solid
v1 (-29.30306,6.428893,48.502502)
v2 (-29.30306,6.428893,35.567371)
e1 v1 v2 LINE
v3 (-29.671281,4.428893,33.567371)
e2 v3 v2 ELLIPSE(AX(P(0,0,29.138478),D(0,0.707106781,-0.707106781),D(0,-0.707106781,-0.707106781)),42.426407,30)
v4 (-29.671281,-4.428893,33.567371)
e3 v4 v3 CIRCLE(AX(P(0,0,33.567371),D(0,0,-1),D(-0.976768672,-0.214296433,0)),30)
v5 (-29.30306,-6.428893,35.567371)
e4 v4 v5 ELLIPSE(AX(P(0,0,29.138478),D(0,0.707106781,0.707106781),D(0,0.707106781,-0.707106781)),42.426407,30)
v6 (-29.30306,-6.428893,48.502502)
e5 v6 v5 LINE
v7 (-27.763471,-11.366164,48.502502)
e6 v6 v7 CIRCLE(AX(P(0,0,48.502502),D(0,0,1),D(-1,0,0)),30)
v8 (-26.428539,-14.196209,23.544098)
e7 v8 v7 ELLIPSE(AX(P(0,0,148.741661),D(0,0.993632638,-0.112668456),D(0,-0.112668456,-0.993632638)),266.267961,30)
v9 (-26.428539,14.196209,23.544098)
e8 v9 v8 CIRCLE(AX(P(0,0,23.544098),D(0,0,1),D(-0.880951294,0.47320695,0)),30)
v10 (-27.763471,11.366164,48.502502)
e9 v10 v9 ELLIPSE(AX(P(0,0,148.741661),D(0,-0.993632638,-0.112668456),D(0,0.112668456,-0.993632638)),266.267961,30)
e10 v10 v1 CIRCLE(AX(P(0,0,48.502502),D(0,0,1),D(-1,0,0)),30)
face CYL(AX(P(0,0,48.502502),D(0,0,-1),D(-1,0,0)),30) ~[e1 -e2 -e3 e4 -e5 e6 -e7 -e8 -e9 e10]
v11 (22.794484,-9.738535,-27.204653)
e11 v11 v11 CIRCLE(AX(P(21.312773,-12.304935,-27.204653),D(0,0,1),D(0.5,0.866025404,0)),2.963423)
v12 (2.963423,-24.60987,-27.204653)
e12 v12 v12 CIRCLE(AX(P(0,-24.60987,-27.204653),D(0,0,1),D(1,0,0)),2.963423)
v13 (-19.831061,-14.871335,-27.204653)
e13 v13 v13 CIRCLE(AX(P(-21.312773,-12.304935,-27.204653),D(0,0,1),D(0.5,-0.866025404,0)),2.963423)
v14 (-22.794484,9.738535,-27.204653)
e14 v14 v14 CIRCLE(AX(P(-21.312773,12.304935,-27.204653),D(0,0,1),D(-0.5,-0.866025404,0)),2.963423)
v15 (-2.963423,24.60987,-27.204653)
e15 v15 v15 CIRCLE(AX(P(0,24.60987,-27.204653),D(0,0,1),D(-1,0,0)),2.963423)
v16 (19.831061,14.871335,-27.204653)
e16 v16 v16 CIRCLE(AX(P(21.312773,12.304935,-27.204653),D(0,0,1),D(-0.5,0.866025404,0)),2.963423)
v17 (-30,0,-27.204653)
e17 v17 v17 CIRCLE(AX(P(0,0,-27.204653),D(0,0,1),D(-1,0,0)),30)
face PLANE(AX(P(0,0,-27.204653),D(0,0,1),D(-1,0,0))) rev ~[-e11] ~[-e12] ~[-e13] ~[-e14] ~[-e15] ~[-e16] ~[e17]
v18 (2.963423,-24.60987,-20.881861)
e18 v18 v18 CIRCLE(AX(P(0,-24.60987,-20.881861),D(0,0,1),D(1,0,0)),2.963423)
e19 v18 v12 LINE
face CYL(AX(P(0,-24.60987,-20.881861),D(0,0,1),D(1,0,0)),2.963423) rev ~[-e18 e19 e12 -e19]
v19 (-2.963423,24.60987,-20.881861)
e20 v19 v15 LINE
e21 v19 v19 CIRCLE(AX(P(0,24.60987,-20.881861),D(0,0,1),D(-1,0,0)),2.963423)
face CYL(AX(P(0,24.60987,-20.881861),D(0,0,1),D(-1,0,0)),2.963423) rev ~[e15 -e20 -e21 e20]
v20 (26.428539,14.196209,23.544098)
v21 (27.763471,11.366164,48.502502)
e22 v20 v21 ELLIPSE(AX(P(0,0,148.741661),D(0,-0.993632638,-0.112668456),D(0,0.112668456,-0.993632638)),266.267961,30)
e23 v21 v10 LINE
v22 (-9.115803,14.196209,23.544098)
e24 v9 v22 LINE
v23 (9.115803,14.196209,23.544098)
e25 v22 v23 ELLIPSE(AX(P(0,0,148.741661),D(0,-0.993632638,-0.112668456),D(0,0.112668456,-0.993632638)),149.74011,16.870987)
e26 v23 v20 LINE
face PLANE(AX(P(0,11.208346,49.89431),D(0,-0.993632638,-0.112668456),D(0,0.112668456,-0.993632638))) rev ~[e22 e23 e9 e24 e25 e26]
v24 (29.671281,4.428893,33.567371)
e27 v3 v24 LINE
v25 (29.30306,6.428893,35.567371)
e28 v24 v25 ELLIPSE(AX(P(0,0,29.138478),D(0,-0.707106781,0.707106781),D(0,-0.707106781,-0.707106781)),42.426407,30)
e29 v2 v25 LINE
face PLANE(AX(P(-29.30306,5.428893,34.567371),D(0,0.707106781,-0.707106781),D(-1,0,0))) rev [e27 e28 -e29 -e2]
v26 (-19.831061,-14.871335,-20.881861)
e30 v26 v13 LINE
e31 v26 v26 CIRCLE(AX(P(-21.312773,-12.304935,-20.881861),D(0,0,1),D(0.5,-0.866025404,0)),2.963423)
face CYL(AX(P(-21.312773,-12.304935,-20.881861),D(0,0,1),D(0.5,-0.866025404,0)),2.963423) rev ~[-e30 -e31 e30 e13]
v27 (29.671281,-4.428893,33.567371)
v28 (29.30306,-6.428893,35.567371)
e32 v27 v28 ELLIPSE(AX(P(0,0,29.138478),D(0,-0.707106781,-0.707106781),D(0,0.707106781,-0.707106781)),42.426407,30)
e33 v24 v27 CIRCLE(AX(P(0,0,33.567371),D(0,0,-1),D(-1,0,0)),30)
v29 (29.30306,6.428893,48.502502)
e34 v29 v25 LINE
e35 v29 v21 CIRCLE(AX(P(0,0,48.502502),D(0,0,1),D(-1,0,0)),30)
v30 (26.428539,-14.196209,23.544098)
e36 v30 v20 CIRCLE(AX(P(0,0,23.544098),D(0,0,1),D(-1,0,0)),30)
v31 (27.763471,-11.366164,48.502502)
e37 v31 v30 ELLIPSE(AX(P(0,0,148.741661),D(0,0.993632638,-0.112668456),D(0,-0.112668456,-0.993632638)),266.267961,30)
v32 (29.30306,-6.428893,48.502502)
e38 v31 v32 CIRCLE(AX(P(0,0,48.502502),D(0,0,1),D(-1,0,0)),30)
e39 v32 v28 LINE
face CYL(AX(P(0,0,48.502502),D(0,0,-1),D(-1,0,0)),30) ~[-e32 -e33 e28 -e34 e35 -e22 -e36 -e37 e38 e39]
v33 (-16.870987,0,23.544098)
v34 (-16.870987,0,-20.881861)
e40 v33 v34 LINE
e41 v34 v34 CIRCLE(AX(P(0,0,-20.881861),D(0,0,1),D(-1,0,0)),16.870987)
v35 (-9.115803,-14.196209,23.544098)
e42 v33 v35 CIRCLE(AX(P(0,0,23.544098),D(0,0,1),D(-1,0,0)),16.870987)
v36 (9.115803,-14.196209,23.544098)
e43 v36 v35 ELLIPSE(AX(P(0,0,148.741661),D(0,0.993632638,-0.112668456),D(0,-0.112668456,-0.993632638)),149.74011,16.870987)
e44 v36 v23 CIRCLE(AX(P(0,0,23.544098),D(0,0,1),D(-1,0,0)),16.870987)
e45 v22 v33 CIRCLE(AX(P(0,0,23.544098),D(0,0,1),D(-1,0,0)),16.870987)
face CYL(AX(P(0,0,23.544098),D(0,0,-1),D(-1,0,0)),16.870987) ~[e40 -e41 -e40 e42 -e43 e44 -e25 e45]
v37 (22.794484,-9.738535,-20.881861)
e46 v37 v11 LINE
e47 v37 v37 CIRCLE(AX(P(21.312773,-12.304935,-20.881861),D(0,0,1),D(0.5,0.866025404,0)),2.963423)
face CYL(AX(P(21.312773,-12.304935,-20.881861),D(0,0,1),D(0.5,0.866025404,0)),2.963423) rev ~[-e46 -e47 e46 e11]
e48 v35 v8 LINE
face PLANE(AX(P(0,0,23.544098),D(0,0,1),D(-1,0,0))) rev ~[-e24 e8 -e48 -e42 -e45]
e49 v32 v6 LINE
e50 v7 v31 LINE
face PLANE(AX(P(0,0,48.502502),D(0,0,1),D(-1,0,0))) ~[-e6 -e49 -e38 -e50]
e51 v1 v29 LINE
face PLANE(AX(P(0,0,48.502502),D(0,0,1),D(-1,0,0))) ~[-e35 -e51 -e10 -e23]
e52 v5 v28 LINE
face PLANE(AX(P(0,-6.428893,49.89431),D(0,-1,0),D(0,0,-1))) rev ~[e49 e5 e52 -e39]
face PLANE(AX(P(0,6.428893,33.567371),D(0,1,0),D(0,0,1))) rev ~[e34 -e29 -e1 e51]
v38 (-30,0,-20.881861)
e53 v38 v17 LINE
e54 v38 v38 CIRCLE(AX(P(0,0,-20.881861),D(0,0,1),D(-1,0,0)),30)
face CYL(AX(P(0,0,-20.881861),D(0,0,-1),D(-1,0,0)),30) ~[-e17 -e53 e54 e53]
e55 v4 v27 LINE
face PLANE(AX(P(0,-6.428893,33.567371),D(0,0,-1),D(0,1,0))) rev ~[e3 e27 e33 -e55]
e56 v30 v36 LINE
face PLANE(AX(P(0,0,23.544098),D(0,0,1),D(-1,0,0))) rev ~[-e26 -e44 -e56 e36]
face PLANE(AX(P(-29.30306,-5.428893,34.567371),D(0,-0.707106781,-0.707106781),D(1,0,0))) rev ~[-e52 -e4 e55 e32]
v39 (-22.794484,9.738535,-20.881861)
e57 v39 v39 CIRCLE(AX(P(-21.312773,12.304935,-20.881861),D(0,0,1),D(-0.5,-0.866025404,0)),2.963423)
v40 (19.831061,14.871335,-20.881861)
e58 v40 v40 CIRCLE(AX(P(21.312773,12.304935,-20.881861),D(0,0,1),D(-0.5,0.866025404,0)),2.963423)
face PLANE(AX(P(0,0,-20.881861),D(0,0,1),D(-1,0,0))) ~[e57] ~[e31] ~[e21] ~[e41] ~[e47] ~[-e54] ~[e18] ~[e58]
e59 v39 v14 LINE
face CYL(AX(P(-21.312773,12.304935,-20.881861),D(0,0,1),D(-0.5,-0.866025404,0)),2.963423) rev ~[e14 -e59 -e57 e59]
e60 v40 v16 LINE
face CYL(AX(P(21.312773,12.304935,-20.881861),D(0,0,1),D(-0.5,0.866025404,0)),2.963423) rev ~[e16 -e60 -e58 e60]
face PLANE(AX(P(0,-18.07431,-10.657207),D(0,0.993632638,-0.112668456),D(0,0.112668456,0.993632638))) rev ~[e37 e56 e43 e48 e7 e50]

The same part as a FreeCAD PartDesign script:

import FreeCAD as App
import Part
import Sketcher
Q = App.Units.Quantity


def edges_at(feature, points):
    """Names of the edges that pass closest to the given points."""
    edges = feature.Shape.Edges
    near = lambda p: min(range(len(edges)), key=lambda i: edges[i].distToShape(Part.Vertex(*p))[0])
    return sorted({f"Edge{near(p) + 1}" for p in points})

doc = App.newDocument("Part")
body = doc.addObject("PartDesign::Body", "Body")

# Sketch on XZ plane
sketch1 = body.newObject("Sketcher::SketchObject", "Sketch")
sketch1.AttachmentSupport = (doc.getObject("XZ_Plane"), [""])
sketch1.MapMode = "FlatFace"
sketch1.addGeometry(Part.LineSegment(App.Vector(-30, 49, 0), App.Vector(-30, 24, 0)), False)
sketch1.addGeometry(Part.LineSegment(App.Vector(-30, 24, 0), App.Vector(-17, 24, 0)), False)
sketch1.addGeometry(Part.LineSegment(App.Vector(-17, 24, 0), App.Vector(-17, -21, 0)), False)
sketch1.addGeometry(Part.LineSegment(App.Vector(-17, -21, 0), App.Vector(-30, -21, 0)), False)
sketch1.addGeometry(Part.LineSegment(App.Vector(-30, -21, 0), App.Vector(-30, -27, 0)), False)
sketch1.addGeometry(Part.LineSegment(App.Vector(-30, -27, 0), App.Vector(0, -27, 0)), False)
sketch1.addGeometry(Part.LineSegment(App.Vector(0, -27, 0), App.Vector(0, 49, 0)), False)
sketch1.addGeometry(Part.LineSegment(App.Vector(0, 49, 0), App.Vector(-30, 49, 0)), False)
sketch1.addConstraint(Sketcher.Constraint("Coincident", 0, 2, 1, 1))
sketch1.addConstraint(Sketcher.Constraint("Coincident", 1, 2, 2, 1))
sketch1.addConstraint(Sketcher.Constraint("Coincident", 2, 2, 3, 1))
sketch1.addConstraint(Sketcher.Constraint("Coincident", 3, 2, 4, 1))
sketch1.addConstraint(Sketcher.Constraint("Coincident", 4, 2, 5, 1))
sketch1.addConstraint(Sketcher.Constraint("Coincident", 5, 2, 6, 1))
sketch1.addConstraint(Sketcher.Constraint("Coincident", 6, 2, 7, 1))
sketch1.addConstraint(Sketcher.Constraint("Coincident", 7, 2, 0, 1))
sketch1.addConstraint(Sketcher.Constraint("Vertical", 0))
sketch1.addConstraint(Sketcher.Constraint("Horizontal", 1))
sketch1.addConstraint(Sketcher.Constraint("Vertical", 2))
sketch1.addConstraint(Sketcher.Constraint("Horizontal", 3))
sketch1.addConstraint(Sketcher.Constraint("Vertical", 4))
sketch1.addConstraint(Sketcher.Constraint("Horizontal", 5))
sketch1.addConstraint(Sketcher.Constraint("Vertical", 6))
sketch1.addConstraint(Sketcher.Constraint("Horizontal", 7))
sketch1.addConstraint(Sketcher.Constraint("PointOnObject", 5, 2, -2))
sketch1.addConstraint(Sketcher.Constraint("Vertical", 0, 2, 3, 2))
sketch1.addConstraint(Sketcher.Constraint("DistanceX", 5, 1, 5, 2, Q("30 mm")))
sketch1.addConstraint(Sketcher.Constraint("DistanceY", 2, 2, 2, 1, Q("44.425959 mm")))
sketch1.addConstraint(Sketcher.Constraint("DistanceY", 4, 2, 4, 1, Q("6.322792 mm")))
sketch1.addConstraint(Sketcher.Constraint("DistanceY", -1, 1, 0, 2, Q("23.544098 mm")))
sketch1.addConstraint(Sketcher.Constraint("DistanceX", 1, 1, 1, 2, Q("13.129013 mm")))
sketch1.addConstraint(Sketcher.Constraint("DistanceY", 0, 2, 0, 1, Q("24.958404 mm")))
revolution = body.newObject("PartDesign::Revolution", "Revolution")
revolution.Profile = sketch1
revolution.ReferenceAxis = (sketch1, ["V_Axis"])
revolution.Angle = 360

# Sketch on XY plane
sketch2 = body.newObject("Sketcher::SketchObject", "Sketch001")
sketch2.AttachmentSupport = (doc.getObject("XY_Plane"), [""])
sketch2.MapMode = "FlatFace"
sketch2.AttachmentOffset = App.Placement(App.Vector(0, 0, -20.881861), App.Rotation())
sketch2.addGeometry(Part.Circle(App.Vector(0, 24.6, 0), App.Vector(0, 0, 1), 3), False)
sketch2.addConstraint(Sketcher.Constraint("PointOnObject", 0, 3, -2))
sketch2.addConstraint(Sketcher.Constraint("Diameter", 0, Q("5.926846 mm")))
sketch2.addConstraint(Sketcher.Constraint("DistanceY", -1, 1, 0, 3, Q("24.60987 mm")))
pocket1 = body.newObject("PartDesign::Pocket", "Pocket")
pocket1.Profile = sketch2
pocket1.Type = "ThroughAll"
doc.recompute()

polarpattern = body.newObject("PartDesign::PolarPattern", "PolarPattern")
polarpattern.Originals = [pocket1]
polarpattern.Axis = (doc.getObject("Z_Axis"), [""])
polarpattern.Angle = 360
polarpattern.Occurrences = 6
body.Tip = polarpattern

# Sketch on YZ plane
sketch3 = body.newObject("Sketcher::SketchObject", "Sketch002")
sketch3.AttachmentSupport = (doc.getObject("YZ_Plane"), [""])
sketch3.MapMode = "FlatFace"
sketch3.addGeometry(Part.LineSegment(App.Vector(-46.9, 56.3, 0), App.Vector(-46.9, -10.7, 0)), False)
sketch3.addGeometry(Part.LineSegment(App.Vector(-46.9, -10.7, 0), App.Vector(-18.1, -10.7, 0)), False)
sketch3.addGeometry(Part.LineSegment(App.Vector(-18.1, -10.7, 0), App.Vector(-11.2, 49.9, 0)), False)
sketch3.addGeometry(Part.LineSegment(App.Vector(-11.2, 49.9, 0), App.Vector(-6.4, 49.9, 0)), False)
sketch3.addGeometry(Part.LineSegment(App.Vector(-6.4, 49.9, 0), App.Vector(-6.4, 33.6, 0)), False)
sketch3.addGeometry(Part.LineSegment(App.Vector(-6.4, 33.6, 0), App.Vector(6.4, 33.6, 0)), False)
sketch3.addGeometry(Part.LineSegment(App.Vector(6.4, 33.6, 0), App.Vector(6.4, 49.9, 0)), False)
sketch3.addGeometry(Part.LineSegment(App.Vector(6.4, 49.9, 0), App.Vector(11.2, 49.9, 0)), False)
sketch3.addGeometry(Part.LineSegment(App.Vector(11.2, 49.9, 0), App.Vector(18.1, -10.7, 0)), False)
sketch3.addGeometry(Part.LineSegment(App.Vector(18.1, -10.7, 0), App.Vector(46.9, -10.7, 0)), False)
sketch3.addGeometry(Part.LineSegment(App.Vector(46.9, -10.7, 0), App.Vector(46.9, 56.3, 0)), False)
sketch3.addGeometry(Part.LineSegment(App.Vector(46.9, 56.3, 0), App.Vector(-46.9, 56.3, 0)), False)
sketch3.addConstraint(Sketcher.Constraint("Coincident", 0, 2, 1, 1))
sketch3.addConstraint(Sketcher.Constraint("Coincident", 1, 2, 2, 1))
sketch3.addConstraint(Sketcher.Constraint("Coincident", 2, 2, 3, 1))
sketch3.addConstraint(Sketcher.Constraint("Coincident", 3, 2, 4, 1))
sketch3.addConstraint(Sketcher.Constraint("Coincident", 4, 2, 5, 1))
sketch3.addConstraint(Sketcher.Constraint("Coincident", 5, 2, 6, 1))
sketch3.addConstraint(Sketcher.Constraint("Coincident", 6, 2, 7, 1))
sketch3.addConstraint(Sketcher.Constraint("Coincident", 7, 2, 8, 1))
sketch3.addConstraint(Sketcher.Constraint("Coincident", 8, 2, 9, 1))
sketch3.addConstraint(Sketcher.Constraint("Coincident", 9, 2, 10, 1))
sketch3.addConstraint(Sketcher.Constraint("Coincident", 10, 2, 11, 1))
sketch3.addConstraint(Sketcher.Constraint("Coincident", 11, 2, 0, 1))
sketch3.addConstraint(Sketcher.Constraint("Vertical", 0))
sketch3.addConstraint(Sketcher.Constraint("Horizontal", 1))
sketch3.addConstraint(Sketcher.Constraint("Horizontal", 3))
sketch3.addConstraint(Sketcher.Constraint("Vertical", 4))
sketch3.addConstraint(Sketcher.Constraint("Horizontal", 5))
sketch3.addConstraint(Sketcher.Constraint("Vertical", 6))
sketch3.addConstraint(Sketcher.Constraint("Horizontal", 7))
sketch3.addConstraint(Sketcher.Constraint("Horizontal", 9))
sketch3.addConstraint(Sketcher.Constraint("Vertical", 10))
sketch3.addConstraint(Sketcher.Constraint("Horizontal", 11))
sketch3.addConstraint(Sketcher.Constraint("Symmetric", 3, 2, 6, 2, -2))
sketch3.addConstraint(Sketcher.Constraint("Symmetric", 1, 2, 8, 2, -2))
sketch3.addConstraint(Sketcher.Constraint("Equal", 3, 7))
sketch3.addConstraint(Sketcher.Constraint("Equal", 1, 9))
sketch3.addConstraint(Sketcher.Constraint("DistanceY", 4, 2, 4, 1, Q("16.326939 mm")))
sketch3.addConstraint(Sketcher.Constraint("DistanceY", 5, 2, 10, 2, Q("22.7702 mm")))
sketch3.addConstraint(Sketcher.Constraint("Distance", 2, Q("60.939541 mm")))
sketch3.addConstraint(Sketcher.Constraint("DistanceX", 1, 1, 1, 2, Q("28.867913 mm")))
sketch3.addConstraint(Sketcher.Constraint("DistanceX", 3, 1, 3, 2, Q("4.779453 mm")))
sketch3.addConstraint(Sketcher.Constraint("DistanceX", 5, 1, 5, 2, Q("12.857786 mm")))
sketch3.addConstraint(Sketcher.Constraint("DistanceX", 11, 2, 11, 1, Q("93.884446 mm")))
sketch3.addConstraint(Sketcher.Constraint("DistanceY", -1, 1, 2, 2, Q("49.89431 mm")))
pocket2 = body.newObject("PartDesign::Pocket", "Pocket001")
pocket2.Profile = sketch3
pocket2.Length = 82
pocket2.Midplane = True
doc.recompute()

chamfer = body.newObject("PartDesign::Chamfer", "Chamfer")
chamfer.Base = (pocket2, edges_at(pocket2, [(0, -6.429, 33.567), (0, 6.429, 33.567)]))
chamfer.Size = 2

doc.recompute()
